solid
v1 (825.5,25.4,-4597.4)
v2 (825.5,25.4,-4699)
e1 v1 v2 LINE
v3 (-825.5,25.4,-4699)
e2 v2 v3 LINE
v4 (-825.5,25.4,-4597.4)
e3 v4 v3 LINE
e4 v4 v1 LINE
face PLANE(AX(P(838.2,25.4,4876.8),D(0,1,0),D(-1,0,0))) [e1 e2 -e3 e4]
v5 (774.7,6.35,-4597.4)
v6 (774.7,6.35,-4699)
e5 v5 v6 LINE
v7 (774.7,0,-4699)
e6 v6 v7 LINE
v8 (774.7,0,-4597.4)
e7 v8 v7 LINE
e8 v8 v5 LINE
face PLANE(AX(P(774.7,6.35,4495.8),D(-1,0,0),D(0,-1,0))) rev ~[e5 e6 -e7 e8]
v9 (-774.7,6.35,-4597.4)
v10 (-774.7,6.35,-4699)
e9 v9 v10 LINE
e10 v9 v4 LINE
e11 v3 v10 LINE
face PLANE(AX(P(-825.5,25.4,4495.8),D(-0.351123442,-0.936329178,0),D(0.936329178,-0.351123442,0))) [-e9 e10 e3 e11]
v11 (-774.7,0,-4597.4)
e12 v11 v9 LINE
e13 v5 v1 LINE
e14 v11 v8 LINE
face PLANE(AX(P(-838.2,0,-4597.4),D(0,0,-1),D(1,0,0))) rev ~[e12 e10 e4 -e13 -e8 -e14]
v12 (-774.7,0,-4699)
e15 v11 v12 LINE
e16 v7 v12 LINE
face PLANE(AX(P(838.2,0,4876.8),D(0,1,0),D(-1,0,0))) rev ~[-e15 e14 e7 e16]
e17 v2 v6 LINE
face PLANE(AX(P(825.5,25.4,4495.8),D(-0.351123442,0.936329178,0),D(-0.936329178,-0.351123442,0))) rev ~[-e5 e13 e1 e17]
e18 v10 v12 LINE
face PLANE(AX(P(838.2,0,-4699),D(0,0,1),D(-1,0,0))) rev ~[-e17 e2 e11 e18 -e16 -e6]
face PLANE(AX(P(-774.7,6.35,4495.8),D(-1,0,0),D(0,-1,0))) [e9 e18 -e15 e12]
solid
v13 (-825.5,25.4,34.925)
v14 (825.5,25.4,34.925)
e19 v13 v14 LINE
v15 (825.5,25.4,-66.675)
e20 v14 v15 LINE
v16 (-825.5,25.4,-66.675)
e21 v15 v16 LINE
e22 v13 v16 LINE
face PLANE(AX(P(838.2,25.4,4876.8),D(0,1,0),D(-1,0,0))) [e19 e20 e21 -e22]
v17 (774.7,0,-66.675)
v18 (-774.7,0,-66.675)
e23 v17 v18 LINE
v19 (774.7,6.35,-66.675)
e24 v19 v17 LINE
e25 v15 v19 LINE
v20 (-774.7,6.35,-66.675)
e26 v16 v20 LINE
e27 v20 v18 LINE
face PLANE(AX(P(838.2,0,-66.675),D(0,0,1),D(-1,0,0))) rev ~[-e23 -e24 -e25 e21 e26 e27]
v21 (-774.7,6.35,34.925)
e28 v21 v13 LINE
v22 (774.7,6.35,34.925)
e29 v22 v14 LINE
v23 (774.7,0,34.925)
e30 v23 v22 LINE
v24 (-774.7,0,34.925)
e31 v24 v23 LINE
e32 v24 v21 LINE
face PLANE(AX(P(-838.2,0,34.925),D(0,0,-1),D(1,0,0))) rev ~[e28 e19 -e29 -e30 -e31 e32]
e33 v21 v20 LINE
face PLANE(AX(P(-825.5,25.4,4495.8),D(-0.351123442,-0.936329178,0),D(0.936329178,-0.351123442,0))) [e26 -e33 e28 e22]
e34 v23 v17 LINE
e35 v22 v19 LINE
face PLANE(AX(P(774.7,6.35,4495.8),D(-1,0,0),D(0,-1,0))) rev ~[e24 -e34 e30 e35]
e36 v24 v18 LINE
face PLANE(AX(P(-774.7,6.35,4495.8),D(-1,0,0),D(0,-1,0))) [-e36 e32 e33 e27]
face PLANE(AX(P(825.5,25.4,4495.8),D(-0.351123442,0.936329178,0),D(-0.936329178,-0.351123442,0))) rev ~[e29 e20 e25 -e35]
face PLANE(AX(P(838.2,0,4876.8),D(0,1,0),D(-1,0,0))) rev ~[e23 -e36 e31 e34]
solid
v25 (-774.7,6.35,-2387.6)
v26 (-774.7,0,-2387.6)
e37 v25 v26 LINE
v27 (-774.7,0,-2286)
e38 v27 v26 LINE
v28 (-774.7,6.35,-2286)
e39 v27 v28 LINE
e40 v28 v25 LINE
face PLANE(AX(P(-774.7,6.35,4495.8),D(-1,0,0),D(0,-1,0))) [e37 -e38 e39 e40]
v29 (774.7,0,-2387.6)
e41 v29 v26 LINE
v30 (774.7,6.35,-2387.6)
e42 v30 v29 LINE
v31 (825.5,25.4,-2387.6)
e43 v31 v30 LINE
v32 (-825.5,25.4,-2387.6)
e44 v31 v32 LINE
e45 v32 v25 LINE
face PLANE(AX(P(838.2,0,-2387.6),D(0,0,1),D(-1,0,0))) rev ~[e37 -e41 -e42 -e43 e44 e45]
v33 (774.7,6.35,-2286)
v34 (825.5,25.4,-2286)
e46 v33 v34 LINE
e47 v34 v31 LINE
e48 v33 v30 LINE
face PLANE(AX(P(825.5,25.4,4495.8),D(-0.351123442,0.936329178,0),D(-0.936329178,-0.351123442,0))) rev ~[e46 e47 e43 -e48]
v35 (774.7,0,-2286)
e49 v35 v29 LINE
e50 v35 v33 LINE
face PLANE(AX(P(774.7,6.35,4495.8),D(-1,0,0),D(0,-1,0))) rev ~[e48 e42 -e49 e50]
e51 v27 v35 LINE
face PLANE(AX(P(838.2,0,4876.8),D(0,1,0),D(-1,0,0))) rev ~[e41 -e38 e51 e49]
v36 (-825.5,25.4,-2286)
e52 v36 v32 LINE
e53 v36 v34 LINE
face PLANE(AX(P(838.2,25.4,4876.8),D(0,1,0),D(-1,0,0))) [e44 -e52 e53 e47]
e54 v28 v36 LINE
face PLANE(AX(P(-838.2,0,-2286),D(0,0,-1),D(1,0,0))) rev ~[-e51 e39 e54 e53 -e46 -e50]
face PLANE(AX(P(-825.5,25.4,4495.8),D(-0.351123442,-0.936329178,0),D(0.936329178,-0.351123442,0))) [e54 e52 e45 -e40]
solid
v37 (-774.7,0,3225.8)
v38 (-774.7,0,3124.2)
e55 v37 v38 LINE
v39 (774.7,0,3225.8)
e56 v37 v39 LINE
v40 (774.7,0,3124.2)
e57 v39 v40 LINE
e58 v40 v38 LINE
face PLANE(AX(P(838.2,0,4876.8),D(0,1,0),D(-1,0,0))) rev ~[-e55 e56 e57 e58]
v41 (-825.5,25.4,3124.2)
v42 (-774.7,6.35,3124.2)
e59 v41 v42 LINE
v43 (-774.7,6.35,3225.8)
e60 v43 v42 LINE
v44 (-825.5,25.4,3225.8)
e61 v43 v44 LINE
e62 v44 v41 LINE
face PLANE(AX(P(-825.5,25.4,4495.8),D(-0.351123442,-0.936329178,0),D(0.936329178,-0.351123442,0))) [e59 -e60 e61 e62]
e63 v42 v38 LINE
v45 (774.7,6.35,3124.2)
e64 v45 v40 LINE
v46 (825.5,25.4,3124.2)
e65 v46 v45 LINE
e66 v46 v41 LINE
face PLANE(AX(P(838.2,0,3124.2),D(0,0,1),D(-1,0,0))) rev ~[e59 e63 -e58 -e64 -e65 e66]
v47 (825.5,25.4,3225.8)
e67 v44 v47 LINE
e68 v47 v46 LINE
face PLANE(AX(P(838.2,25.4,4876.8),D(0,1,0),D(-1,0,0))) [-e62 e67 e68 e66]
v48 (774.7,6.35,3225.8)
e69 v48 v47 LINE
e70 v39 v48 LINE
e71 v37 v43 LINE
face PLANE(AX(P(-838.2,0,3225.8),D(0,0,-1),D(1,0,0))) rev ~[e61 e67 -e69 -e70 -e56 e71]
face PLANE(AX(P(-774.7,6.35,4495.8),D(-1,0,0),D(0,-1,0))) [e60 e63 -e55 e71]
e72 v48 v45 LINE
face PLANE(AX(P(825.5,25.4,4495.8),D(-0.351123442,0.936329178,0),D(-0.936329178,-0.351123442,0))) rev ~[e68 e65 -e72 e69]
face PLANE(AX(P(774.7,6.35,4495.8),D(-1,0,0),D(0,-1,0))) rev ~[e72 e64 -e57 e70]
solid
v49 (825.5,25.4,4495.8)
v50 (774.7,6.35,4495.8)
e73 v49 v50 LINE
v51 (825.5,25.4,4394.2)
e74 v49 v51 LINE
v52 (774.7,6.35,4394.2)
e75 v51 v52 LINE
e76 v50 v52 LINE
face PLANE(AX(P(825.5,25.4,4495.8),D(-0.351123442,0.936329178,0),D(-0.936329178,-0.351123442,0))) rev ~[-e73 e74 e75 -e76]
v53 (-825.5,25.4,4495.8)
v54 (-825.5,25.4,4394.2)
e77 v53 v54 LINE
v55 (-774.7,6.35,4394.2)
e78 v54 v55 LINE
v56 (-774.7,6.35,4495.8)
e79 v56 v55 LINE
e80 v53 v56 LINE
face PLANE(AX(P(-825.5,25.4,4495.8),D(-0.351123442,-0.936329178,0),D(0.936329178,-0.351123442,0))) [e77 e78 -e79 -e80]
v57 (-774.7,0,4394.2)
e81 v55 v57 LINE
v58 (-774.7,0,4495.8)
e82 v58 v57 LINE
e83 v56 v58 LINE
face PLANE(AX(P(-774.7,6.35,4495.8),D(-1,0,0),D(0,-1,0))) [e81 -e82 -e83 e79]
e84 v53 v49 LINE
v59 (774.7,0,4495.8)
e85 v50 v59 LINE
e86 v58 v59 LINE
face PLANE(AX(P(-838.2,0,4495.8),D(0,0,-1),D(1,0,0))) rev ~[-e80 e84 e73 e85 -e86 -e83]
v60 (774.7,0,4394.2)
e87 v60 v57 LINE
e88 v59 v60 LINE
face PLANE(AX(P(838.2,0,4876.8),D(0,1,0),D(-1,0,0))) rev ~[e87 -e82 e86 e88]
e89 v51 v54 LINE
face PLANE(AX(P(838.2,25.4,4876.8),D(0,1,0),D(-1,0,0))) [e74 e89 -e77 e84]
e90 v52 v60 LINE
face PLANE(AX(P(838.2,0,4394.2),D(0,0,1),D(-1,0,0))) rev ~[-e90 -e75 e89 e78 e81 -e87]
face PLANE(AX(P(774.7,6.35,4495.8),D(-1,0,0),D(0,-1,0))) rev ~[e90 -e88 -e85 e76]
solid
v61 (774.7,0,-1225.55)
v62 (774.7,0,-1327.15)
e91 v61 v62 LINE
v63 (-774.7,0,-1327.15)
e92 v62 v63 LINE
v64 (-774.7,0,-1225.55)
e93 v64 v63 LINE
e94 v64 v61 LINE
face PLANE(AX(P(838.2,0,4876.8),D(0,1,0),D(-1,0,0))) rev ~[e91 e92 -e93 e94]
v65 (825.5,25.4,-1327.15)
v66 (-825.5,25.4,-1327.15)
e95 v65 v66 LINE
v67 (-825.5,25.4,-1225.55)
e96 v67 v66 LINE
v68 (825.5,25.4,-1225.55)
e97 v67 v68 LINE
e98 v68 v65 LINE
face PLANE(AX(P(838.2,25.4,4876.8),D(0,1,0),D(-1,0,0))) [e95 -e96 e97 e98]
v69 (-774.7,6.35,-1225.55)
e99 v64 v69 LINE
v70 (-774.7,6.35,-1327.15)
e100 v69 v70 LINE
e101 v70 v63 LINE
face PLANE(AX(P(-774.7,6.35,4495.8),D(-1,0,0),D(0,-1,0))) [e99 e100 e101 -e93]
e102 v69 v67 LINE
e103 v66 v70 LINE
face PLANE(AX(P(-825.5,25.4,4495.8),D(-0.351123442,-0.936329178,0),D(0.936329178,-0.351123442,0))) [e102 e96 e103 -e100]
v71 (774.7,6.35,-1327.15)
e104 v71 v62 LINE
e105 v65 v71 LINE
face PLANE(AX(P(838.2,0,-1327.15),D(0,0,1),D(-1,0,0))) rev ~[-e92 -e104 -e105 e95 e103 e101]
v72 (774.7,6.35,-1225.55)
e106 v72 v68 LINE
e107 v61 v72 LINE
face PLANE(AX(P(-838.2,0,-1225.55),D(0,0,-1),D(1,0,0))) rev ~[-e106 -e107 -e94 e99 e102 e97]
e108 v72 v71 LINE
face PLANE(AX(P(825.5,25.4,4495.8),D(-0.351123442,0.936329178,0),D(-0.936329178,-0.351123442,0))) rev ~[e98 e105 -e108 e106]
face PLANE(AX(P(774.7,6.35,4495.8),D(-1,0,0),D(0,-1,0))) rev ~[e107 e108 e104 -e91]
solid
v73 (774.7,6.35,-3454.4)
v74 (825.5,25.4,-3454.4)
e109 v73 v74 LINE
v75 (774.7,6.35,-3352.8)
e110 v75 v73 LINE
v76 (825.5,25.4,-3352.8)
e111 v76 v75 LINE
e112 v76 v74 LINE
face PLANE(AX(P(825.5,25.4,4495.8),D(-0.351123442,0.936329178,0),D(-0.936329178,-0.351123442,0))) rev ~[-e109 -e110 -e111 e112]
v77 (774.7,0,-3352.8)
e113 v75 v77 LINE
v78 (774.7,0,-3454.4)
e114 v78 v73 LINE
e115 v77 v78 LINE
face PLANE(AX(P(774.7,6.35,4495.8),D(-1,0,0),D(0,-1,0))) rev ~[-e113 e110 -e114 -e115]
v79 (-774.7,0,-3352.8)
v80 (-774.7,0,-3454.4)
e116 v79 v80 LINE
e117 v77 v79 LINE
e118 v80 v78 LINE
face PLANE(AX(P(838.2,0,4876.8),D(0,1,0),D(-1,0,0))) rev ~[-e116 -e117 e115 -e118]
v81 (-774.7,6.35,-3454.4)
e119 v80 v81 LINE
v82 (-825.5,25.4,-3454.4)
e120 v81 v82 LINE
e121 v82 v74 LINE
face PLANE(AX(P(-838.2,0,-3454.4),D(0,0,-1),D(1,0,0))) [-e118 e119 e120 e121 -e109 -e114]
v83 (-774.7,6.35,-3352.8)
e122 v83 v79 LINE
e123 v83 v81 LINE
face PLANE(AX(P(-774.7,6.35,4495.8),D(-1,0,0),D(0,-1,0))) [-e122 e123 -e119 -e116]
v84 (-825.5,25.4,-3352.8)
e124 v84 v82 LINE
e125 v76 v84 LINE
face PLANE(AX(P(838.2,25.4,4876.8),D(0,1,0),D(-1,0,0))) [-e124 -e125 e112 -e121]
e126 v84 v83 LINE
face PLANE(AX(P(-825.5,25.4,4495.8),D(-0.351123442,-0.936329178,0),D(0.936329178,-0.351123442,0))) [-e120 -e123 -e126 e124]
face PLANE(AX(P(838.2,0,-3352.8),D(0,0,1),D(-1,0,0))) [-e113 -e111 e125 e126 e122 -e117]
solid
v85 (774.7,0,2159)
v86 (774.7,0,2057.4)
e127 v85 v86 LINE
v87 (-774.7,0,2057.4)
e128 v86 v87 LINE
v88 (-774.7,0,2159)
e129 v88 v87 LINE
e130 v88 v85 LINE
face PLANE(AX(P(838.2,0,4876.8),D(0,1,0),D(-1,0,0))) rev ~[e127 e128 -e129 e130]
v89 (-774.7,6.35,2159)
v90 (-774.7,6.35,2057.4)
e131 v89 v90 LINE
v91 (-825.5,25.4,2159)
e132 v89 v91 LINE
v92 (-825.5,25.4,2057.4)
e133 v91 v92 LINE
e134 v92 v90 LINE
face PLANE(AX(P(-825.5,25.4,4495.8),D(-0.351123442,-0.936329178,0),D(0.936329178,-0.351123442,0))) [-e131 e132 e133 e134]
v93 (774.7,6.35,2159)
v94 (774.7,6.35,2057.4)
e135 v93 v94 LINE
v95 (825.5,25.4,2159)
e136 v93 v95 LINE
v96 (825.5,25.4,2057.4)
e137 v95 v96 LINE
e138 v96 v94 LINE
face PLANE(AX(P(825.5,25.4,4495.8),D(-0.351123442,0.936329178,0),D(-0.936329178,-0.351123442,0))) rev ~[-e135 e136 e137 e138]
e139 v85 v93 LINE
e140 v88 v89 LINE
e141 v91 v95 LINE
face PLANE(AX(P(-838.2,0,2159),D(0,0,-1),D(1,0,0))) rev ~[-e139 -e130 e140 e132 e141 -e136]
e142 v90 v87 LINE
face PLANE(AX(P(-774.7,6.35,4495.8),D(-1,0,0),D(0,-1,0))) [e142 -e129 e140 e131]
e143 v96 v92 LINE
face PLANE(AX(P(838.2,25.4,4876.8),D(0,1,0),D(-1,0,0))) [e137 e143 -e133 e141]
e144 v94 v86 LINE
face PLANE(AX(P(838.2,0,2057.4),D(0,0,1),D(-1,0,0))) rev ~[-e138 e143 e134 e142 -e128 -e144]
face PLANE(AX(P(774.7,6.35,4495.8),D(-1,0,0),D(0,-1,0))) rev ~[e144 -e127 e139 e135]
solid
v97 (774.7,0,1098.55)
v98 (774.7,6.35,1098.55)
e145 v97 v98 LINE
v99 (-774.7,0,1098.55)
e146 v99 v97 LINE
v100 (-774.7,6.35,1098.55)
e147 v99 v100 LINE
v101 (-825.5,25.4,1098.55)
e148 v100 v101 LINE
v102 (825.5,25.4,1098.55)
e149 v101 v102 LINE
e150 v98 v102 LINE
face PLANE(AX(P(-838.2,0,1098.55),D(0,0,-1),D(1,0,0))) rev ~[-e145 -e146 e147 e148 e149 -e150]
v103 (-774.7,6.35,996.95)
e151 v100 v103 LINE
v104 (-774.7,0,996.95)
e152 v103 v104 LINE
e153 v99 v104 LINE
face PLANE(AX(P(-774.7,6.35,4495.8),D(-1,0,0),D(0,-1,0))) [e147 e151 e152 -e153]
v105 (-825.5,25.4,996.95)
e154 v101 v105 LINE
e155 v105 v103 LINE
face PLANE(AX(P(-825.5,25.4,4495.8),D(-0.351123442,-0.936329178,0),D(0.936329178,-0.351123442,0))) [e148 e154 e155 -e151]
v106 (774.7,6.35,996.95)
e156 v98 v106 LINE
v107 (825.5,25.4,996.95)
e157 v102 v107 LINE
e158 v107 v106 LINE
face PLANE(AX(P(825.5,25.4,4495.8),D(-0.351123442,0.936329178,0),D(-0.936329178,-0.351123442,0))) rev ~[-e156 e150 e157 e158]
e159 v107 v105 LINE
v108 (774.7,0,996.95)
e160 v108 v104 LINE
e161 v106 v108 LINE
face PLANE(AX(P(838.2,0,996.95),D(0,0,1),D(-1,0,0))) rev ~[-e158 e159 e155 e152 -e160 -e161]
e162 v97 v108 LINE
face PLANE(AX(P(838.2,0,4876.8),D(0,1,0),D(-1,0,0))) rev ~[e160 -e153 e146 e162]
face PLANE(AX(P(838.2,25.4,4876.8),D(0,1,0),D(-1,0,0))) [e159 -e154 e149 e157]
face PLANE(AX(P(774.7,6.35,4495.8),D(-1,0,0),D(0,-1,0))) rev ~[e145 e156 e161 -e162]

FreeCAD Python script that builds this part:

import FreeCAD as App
import Part
import Sketcher
Q = App.Units.Quantity


def add_polygon(sketch, points):
    """Adds a closed chain of lines whose ends are joined by coincident constraints."""
    first, n = sketch.GeometryCount, len(points)
    for a, b in zip(points, points[1:] + points[:1]):
        sketch.addGeometry(Part.LineSegment(App.Vector(*a, 0), App.Vector(*b, 0)), False)
    for i in range(n):
        sketch.addConstraint(Sketcher.Constraint("Coincident", first + i, 2, first + (i + 1) % n, 1))

doc = App.newDocument("Part")
body = doc.addObject("PartDesign::Body", "Body")
body.AllowCompound = True

sketch1 = body.newObject("Sketcher::SketchObject", "Sketch")
sketch1.AttachmentSupport = (doc.getObject("XZ_Plane"), [""])
sketch1.MapMode = "FlatFace"
add_polygon(sketch1, [(-838, 4394), (-838, 4496), (838, 4496), (838, 4394)])
add_polygon(sketch1, [(-838, 3124), (-838, 3226), (838, 3226), (838, 3124)])
add_polygon(sketch1, [(-838, 2057), (-838, 2159), (838, 2159), (838, 2057)])
add_polygon(sketch1, [(-838, 997), (-838, 1099), (838, 1099), (838, 997)])
add_polygon(sketch1, [(-838, -67), (-838, 35), (838, 35), (838, -67)])
add_polygon(sketch1, [(-838, -1327), (-838, -1226), (838, -1226), (838, -1327)])
add_polygon(sketch1, [(-838, -2388), (-838, -2286), (838, -2286), (838, -2388)])
add_polygon(sketch1, [(-838, -3454), (-838, -3353), (838, -3353), (838, -3454)])
add_polygon(sketch1, [(-838, -4699), (-838, -4597), (838, -4597), (838, -4699)])
sketch1.addConstraint(Sketcher.Constraint("Vertical", 0))
sketch1.addConstraint(Sketcher.Constraint("Horizontal", 1))
sketch1.addConstraint(Sketcher.Constraint("Vertical", 2))
sketch1.addConstraint(Sketcher.Constraint("Horizontal", 3))
sketch1.addConstraint(Sketcher.Constraint("Vertical", 4))
sketch1.addConstraint(Sketcher.Constraint("Horizontal", 5))
sketch1.addConstraint(Sketcher.Constraint("Vertical", 6))
sketch1.addConstraint(Sketcher.Constraint("Horizontal", 7))
sketch1.addConstraint(Sketcher.Constraint("Vertical", 8))
sketch1.addConstraint(Sketcher.Constraint("Horizontal", 9))
sketch1.addConstraint(Sketcher.Constraint("Vertical", 10))
sketch1.addConstraint(Sketcher.Constraint("Horizontal", 11))
sketch1.addConstraint(Sketcher.Constraint("Vertical", 12))
sketch1.addConstraint(Sketcher.Constraint("Horizontal", 13))
sketch1.addConstraint(Sketcher.Constraint("Vertical", 14))
sketch1.addConstraint(Sketcher.Constraint("Horizontal", 15))
sketch1.addConstraint(Sketcher.Constraint("Vertical", 16))
sketch1.addConstraint(Sketcher.Constraint("Horizontal", 17))
sketch1.addConstraint(Sketcher.Constraint("Vertical", 18))
sketch1.addConstraint(Sketcher.Constraint("Horizontal", 19))
sketch1.addConstraint(Sketcher.Constraint("Vertical", 20))
sketch1.addConstraint(Sketcher.Constraint("Horizontal", 21))
sketch1.addConstraint(Sketcher.Constraint("Vertical", 22))
sketch1.addConstraint(Sketcher.Constraint("Horizontal", 23))
sketch1.addConstraint(Sketcher.Constraint("Vertical", 24))
sketch1.addConstraint(Sketcher.Constraint("Horizontal", 25))
sketch1.addConstraint(Sketcher.Constraint("Vertical", 26))
sketch1.addConstraint(Sketcher.Constraint("Horizontal", 27))
sketch1.addConstraint(Sketcher.Constraint("Vertical", 28))
sketch1.addConstraint(Sketcher.Constraint("Horizontal", 29))
sketch1.addConstraint(Sketcher.Constraint("Vertical", 30))
sketch1.addConstraint(Sketcher.Constraint("Horizontal", 31))
sketch1.addConstraint(Sketcher.Constraint("Vertical", 32))
sketch1.addConstraint(Sketcher.Constraint("Horizontal", 33))
sketch1.addConstraint(Sketcher.Constraint("Vertical", 34))
sketch1.addConstraint(Sketcher.Constraint("Horizontal", 35))
sketch1.addConstraint(Sketcher.Constraint("Vertical", 3, 2, 4, 2))
sketch1.addConstraint(Sketcher.Constraint("Vertical", 2, 2, 5, 2))
sketch1.addConstraint(Sketcher.Constraint("Vertical", 7, 2, 8, 2))
sketch1.addConstraint(Sketcher.Constraint("Vertical", 6, 2, 9, 2))
sketch1.addConstraint(Sketcher.Constraint("Vertical", 11, 2, 12, 2))
sketch1.addConstraint(Sketcher.Constraint("Vertical", 10, 2, 13, 2))
sketch1.addConstraint(Sketcher.Constraint("Vertical", 15, 2, 16, 2))
sketch1.addConstraint(Sketcher.Constraint("Vertical", 14, 2, 17, 2))
sketch1.addConstraint(Sketcher.Constraint("Vertical", 19, 2, 20, 2))
sketch1.addConstraint(Sketcher.Constraint("Vertical", 18, 2, 21, 2))
sketch1.addConstraint(Sketcher.Constraint("Vertical", 23, 2, 24, 2))
sketch1.addConstraint(Sketcher.Constraint("Vertical", 22, 2, 25, 2))
sketch1.addConstraint(Sketcher.Constraint("Vertical", 27, 2, 28, 2))
sketch1.addConstraint(Sketcher.Constraint("Vertical", 26, 2, 29, 2))
sketch1.addConstraint(Sketcher.Constraint("Vertical", 31, 2, 32, 2))
sketch1.addConstraint(Sketcher.Constraint("Vertical", 30, 2, 33, 2))
sketch1.addConstraint(Sketcher.Constraint("Equal", 2, 4))
sketch1.addConstraint(Sketcher.Constraint("Equal", 6, 8))
sketch1.addConstraint(Sketcher.Constraint("Equal", 10, 12))
sketch1.addConstraint(Sketcher.Constraint("Equal", 14, 16))
sketch1.addConstraint(Sketcher.Constraint("Equal", 18, 20))
sketch1.addConstraint(Sketcher.Constraint("Equal", 22, 24))
sketch1.addConstraint(Sketcher.Constraint("Equal", 26, 28))
sketch1.addConstraint(Sketcher.Constraint("Equal", 30, 32))
sketch1.addConstraint(Sketcher.Constraint("DistanceY", 0, 1, 0, 2, Q("4 in")))
sketch1.addConstraint(Sketcher.Constraint("DistanceY", 4, 2, 3, 2, Q("46 in")))
sketch1.addConstraint(Sketcher.Constraint("DistanceY", 8, 2, 7, 2, Q("38 in")))
sketch1.addConstraint(Sketcher.Constraint("DistanceY", 28, 2, 27, 2, Q("38 in")))
sketch1.addConstraint(Sketcher.Constraint("DistanceX", 1, 1, 1, 2, Q("66 in")))
sketch1.addConstraint(Sketcher.Constraint("DistanceY", 12, 2, 11, 2, Q("37.75 in")))
sketch1.addConstraint(Sketcher.Constraint("DistanceY", 24, 2, 23, 2, Q("37.75 in")))
sketch1.addConstraint(Sketcher.Constraint("DistanceX", 0, 2, -1, 1, Q("33 in")))
sketch1.addConstraint(Sketcher.Constraint("DistanceY", -1, 1, 0, 2, Q("177 in")))
sketch1.addConstraint(Sketcher.Constraint("DistanceY", 24, 2, -1, 1, Q("90 in")))
sketch1.addConstraint(Sketcher.Constraint("DistanceY", 32, 2, -1, 1, Q("181 in")))
sketch1.addConstraint(Sketcher.Constraint("DistanceY", 16, 2, 15, 2, Q("37.875 in")))
pad1 = body.newObject("PartDesign::Pad", "Pad")
pad1.Profile = sketch1
pad1.Length = Q("1 in")
pad1.Reversed = True

sketch2 = body.newObject("Sketcher::SketchObject", "Sketch001")
sketch2.AttachmentSupport = (doc.getObject("XY_Plane"), [""])
sketch2.MapMode = "FlatFace"
sketch2.AttachmentOffset = App.Placement(App.Vector(0, 0, 177 * 25.4), App.Rotation())
add_polygon(sketch2, [(838, 0), (838, 25), (826, 25), (775, 6), (775, 0)])
add_polygon(sketch2, [(-775, 6), (-826, 25), (-838, 25), (-838, 0), (-775, 0)])
sketch2.addConstraint(Sketcher.Constraint("Vertical", 0))
sketch2.addConstraint(Sketcher.Constraint("Horizontal", 1))
sketch2.addConstraint(Sketcher.Constraint("Vertical", 3))
sketch2.addConstraint(Sketcher.Constraint("Horizontal", 4))
sketch2.addConstraint(Sketcher.Constraint("Horizontal", 6))
sketch2.addConstraint(Sketcher.Constraint("Vertical", 7))
sketch2.addConstraint(Sketcher.Constraint("Horizontal", 8))
sketch2.addConstraint(Sketcher.Constraint("Vertical", 9))
sketch2.addConstraint(Sketcher.Constraint("Symmetric", 4, 2, 7, 2, -1, 1))
sketch2.addConstraint(Sketcher.Constraint("Symmetric", 1, 2, 5, 2, -2))
sketch2.addConstraint(Sketcher.Constraint("Symmetric", 3, 2, 8, 2, -2))
sketch2.addConstraint(Sketcher.Constraint("Horizontal", 2, 2, 9, 2))
sketch2.addConstraint(Sketcher.Constraint("DistanceX", 1, 2, 1, 1, Q("0.5 in")))
sketch2.addConstraint(Sketcher.Constraint("DistanceX", 2, 2, 1, 2, Q("2 in")))
sketch2.addConstraint(Sketcher.Constraint("DistanceY", 3, 2, 3, 1, Q("0.25 in")))
sketch2.addConstraint(Sketcher.Constraint("DistanceY", 0, 1, 0, 2, Q("1 in")))
sketch2.addConstraint(Sketcher.Constraint("DistanceX", -1, 1, 0, 2, Q("33 in")))
pocket1 = body.newObject("PartDesign::Pocket", "Pocket")
pocket1.Profile = sketch2
pocket1.Type = "ThroughAll"

doc.recompute()
